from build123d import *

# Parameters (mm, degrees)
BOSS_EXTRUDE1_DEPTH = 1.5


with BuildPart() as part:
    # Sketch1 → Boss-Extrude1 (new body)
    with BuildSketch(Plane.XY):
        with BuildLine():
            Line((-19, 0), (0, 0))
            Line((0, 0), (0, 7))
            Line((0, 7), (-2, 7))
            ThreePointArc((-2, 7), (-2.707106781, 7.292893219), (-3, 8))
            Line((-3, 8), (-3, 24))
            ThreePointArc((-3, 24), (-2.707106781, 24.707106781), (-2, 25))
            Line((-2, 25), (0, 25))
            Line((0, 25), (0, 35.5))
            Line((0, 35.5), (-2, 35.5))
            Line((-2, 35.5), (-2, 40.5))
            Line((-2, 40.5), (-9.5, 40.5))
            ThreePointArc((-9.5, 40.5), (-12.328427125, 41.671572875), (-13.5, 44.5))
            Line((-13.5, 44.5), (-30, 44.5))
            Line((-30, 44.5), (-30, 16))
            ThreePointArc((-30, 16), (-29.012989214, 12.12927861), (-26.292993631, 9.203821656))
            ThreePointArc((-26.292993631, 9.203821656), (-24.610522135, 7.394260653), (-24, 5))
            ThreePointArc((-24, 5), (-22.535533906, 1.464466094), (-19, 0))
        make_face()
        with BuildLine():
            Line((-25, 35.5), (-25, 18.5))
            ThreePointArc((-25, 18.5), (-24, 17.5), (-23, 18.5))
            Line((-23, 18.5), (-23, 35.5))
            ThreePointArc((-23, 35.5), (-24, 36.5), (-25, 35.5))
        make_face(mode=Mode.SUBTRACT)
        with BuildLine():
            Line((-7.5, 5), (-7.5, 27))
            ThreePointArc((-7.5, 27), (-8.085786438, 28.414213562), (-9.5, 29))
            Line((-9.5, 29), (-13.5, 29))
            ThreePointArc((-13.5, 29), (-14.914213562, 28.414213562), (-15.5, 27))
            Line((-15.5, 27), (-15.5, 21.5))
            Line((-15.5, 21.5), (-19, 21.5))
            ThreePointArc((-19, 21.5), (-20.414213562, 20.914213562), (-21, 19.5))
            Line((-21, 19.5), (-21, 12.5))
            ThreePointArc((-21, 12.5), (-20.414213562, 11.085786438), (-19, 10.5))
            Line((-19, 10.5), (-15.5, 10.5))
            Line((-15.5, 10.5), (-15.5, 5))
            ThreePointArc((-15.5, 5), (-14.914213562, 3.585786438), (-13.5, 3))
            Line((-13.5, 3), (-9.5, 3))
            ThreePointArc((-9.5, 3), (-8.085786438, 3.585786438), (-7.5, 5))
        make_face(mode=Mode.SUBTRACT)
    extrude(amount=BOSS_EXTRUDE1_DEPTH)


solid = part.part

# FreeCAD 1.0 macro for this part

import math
import FreeCAD as App
import Part
import Sketcher

V = App.Vector

doc = App.newDocument("Part")
params = doc.addObject("Spreadsheet::Sheet", "Params")
for row, (alias, value) in enumerate([
    ("sketch1_radius", "1 mm"),
    ("sketch1_radius2", "4 mm"),
    ("sketch1_radius3", "5 mm"),
    ("sketch1_radius4", "2 mm"),
    ("sketch1_width", "19 mm"),
    ("pad1_length", "1.5 mm"),
], start=1):
    params.set(f"A{row}", alias)
    params.set(f"B{row}", "=" + value)
    params.setAlias(f"B{row}", alias)

body = doc.addObject("PartDesign::Body", "Body")

# Sketch on XY plane
sketch1 = body.newObject("Sketcher::SketchObject", "Sketch")
sketch1.AttachmentSupport = (doc.getObject("XY_Plane"), [""])
sketch1.MapMode = "FlatFace"
sketch1.addGeometry([
    Part.LineSegment(V(-19, 0, 0), V(0, 0, 0)),  # 0
    Part.LineSegment(V(0, 0, 0), V(0, 7, 0)),  # 1
    Part.LineSegment(V(0, 7, 0), V(-2, 7, 0)),  # 2
    Part.ArcOfCircle(Part.Circle(V(-2, 8, 0), V(0, 0, 1), 1), math.radians(-180), math.radians(-90)),  # 3
    Part.LineSegment(V(-3, 8, 0), V(-3, 24, 0)),  # 4
    Part.ArcOfCircle(Part.Circle(V(-2, 24, 0), V(0, 0, 1), 1), math.radians(90), math.radians(180)),  # 5
    Part.LineSegment(V(-2, 25, 0), V(0, 25, 0)),  # 6
    Part.LineSegment(V(0, 25, 0), V(0, 35.5, 0)),  # 7
    Part.LineSegment(V(0, 35.5, 0), V(-2, 35.5, 0)),  # 8
    Part.LineSegment(V(-2, 35.5, 0), V(-2, 40.5, 0)),  # 9
    Part.LineSegment(V(-2, 40.5, 0), V(-9.5, 40.5, 0)),  # 10
    Part.ArcOfCircle(Part.Circle(V(-9.5, 44.5, 0), V(0, 0, 1), 4), math.radians(180), math.radians(270)),  # 11
    Part.LineSegment(V(-13.5, 44.5, 0), V(-30, 44.5, 0)),  # 12
    Part.LineSegment(V(-30, 44.5, 0), V(-30, 16, 0)),  # 13
    Part.ArcOfCircle(Part.Circle(V(-21.9, 16, 0), V(0, 0, 1), 8.1), math.radians(-180), math.radians(-123)),  # 14
    Part.ArcOfCircle(Part.Circle(V(-29, 5, 0), V(0, 0, 1), 5), math.radians(0), math.radians(57)),  # 15
    Part.ArcOfCircle(Part.Circle(V(-19, 5, 0), V(0, 0, 1), 5), math.radians(180), math.radians(270)),  # 16
    Part.LineSegment(V(-7.5, 27, 0), V(-7.5, 5, 0)),  # 17
    Part.ArcOfCircle(Part.Circle(V(-9.5, 5, 0), V(0, 0, 1), 2), math.radians(-90), math.radians(0)),  # 18
    Part.LineSegment(V(-9.5, 3, 0), V(-13.5, 3, 0)),  # 19
    Part.ArcOfCircle(Part.Circle(V(-13.5, 5, 0), V(0, 0, 1), 2), math.radians(-180), math.radians(-90)),  # 20
    Part.LineSegment(V(-15.5, 5, 0), V(-15.5, 10.5, 0)),  # 21
    Part.LineSegment(V(-15.5, 10.5, 0), V(-19, 10.5, 0)),  # 22
    Part.ArcOfCircle(Part.Circle(V(-19, 12.5, 0), V(0, 0, 1), 2), math.radians(-180), math.radians(-90)),  # 23
    Part.LineSegment(V(-21, 12.5, 0), V(-21, 19.5, 0)),  # 24
    Part.ArcOfCircle(Part.Circle(V(-19, 19.5, 0), V(0, 0, 1), 2), math.radians(90), math.radians(180)),  # 25
    Part.LineSegment(V(-19, 21.5, 0), V(-15.5, 21.5, 0)),  # 26
    Part.LineSegment(V(-15.5, 21.5, 0), V(-15.5, 27, 0)),  # 27
    Part.ArcOfCircle(Part.Circle(V(-13.5, 27, 0), V(0, 0, 1), 2), math.radians(90), math.radians(180)),  # 28
    Part.LineSegment(V(-13.5, 29, 0), V(-9.5, 29, 0)),  # 29
    Part.ArcOfCircle(Part.Circle(V(-9.5, 27, 0), V(0, 0, 1), 2), math.radians(0), math.radians(90)),  # 30
    Part.LineSegment(V(-25, 18.5, 0), V(-25, 35.5, 0)),  # 31
    Part.ArcOfCircle(Part.Circle(V(-24, 35.5, 0), V(0, 0, 1), 1), math.radians(0), math.radians(180)),  # 32
    Part.LineSegment(V(-23, 35.5, 0), V(-23, 18.5, 0)),  # 33
    Part.ArcOfCircle(Part.Circle(V(-24, 18.5, 0), V(0, 0, 1), 1), math.radians(180), math.radians(360)),  # 34
], False)
sketch1.addConstraint([
    Sketcher.Constraint("Coincident", 0, 2, 1, 1),
    Sketcher.Constraint("Coincident", 1, 2, 2, 1),
    Sketcher.Constraint("Tangent", 2, 2, 3, 2),
    Sketcher.Constraint("Tangent", 3, 1, 4, 1),
    Sketcher.Constraint("Tangent", 4, 2, 5, 2),
    Sketcher.Constraint("Tangent", 5, 1, 6, 1),
    Sketcher.Constraint("Coincident", 6, 2, 7, 1),
    Sketcher.Constraint("Coincident", 7, 2, 8, 1),
    Sketcher.Constraint("Coincident", 8, 2, 9, 1),
    Sketcher.Constraint("Coincident", 9, 2, 10, 1),
    Sketcher.Constraint("Tangent", 10, 2, 11, 2),
    Sketcher.Constraint("Coincident", 11, 1, 12, 1),
    Sketcher.Constraint("Coincident", 12, 2, 13, 1),
    Sketcher.Constraint("Tangent", 13, 2, 14, 1),
    Sketcher.Constraint("Tangent", 14, 2, 15, 2),
    Sketcher.Constraint("Tangent", 15, 1, 16, 1),
    Sketcher.Constraint("Tangent", 16, 2, 0, 1),
    Sketcher.Constraint("Tangent", 17, 2, 18, 2),
    Sketcher.Constraint("Tangent", 18, 1, 19, 1),
    Sketcher.Constraint("Tangent", 19, 2, 20, 2),
    Sketcher.Constraint("Tangent", 20, 1, 21, 1),
    Sketcher.Constraint("Coincident", 21, 2, 22, 1),
    Sketcher.Constraint("Tangent", 22, 2, 23, 2),
    Sketcher.Constraint("Tangent", 23, 1, 24, 1),
    Sketcher.Constraint("Tangent", 24, 2, 25, 2),
    Sketcher.Constraint("Tangent", 25, 1, 26, 1),
    Sketcher.Constraint("Coincident", 26, 2, 27, 1),
    Sketcher.Constraint("Tangent", 27, 2, 28, 2),
    Sketcher.Constraint("Tangent", 28, 1, 29, 1),
    Sketcher.Constraint("Tangent", 29, 2, 30, 2),
    Sketcher.Constraint("Tangent", 30, 1, 17, 1),
    Sketcher.Constraint("Tangent", 31, 2, 32, 2),
    Sketcher.Constraint("Tangent", 32, 1, 33, 1),
    Sketcher.Constraint("Tangent", 33, 2, 34, 2),
    Sketcher.Constraint("Tangent", 34, 1, 31, 1),
    Sketcher.Constraint("Horizontal", 0),
    Sketcher.Constraint("Vertical", 1),
    Sketcher.Constraint("Horizontal", 2),
    Sketcher.Constraint("Vertical", 4),
    Sketcher.Constraint("Horizontal", 6),
    Sketcher.Constraint("Vertical", 7),
    Sketcher.Constraint("Horizontal", 8),
    Sketcher.Constraint("Vertical", 9),
    Sketcher.Constraint("Horizontal", 10),
    Sketcher.Constraint("Horizontal", 12),
    Sketcher.Constraint("Vertical", 13),
    Sketcher.Constraint("Vertical", 17),
    Sketcher.Constraint("Horizontal", 19),
    Sketcher.Constraint("Vertical", 21),
    Sketcher.Constraint("Horizontal", 22),
    Sketcher.Constraint("Vertical", 24),
    Sketcher.Constraint("Horizontal", 26),
    Sketcher.Constraint("Vertical", 27),
    Sketcher.Constraint("Horizontal", 29),
    Sketcher.Constraint("Vertical", 31),
    Sketcher.Constraint("Vertical", 33),
    Sketcher.Constraint("Coincident", 0, 2, -1, 1),
    Sketcher.Constraint("Equal", 3, 5),
    Sketcher.Constraint("Equal", 15, 16),
    Sketcher.Constraint("Equal", 18, 20),
    Sketcher.Constraint("Equal", 20, 23),
    Sketcher.Constraint("Equal", 23, 25),
    Sketcher.Constraint("Equal", 25, 28),
    Sketcher.Constraint("Equal", 28, 30),
    Sketcher.Constraint("Equal", 5, 32),
    Sketcher.Constraint("PointOnObject", 6, 2, -2),
    Sketcher.Constraint("Horizontal", 15, 3, 16, 3),
    Sketcher.Constraint("Horizontal", 16, 3, 18, 3),
    Sketcher.Constraint("Horizontal", 32, 3, 7, 2),
    Sketcher.Constraint("Vertical", 11, 3, 18, 3),
    Sketcher.Constraint("Vertical", 16, 3, 23, 3),
    Sketcher.Constraint("Vertical", 20, 3, 28, 3),
    Sketcher.Constraint("Vertical", 5, 1, 8, 2),
    Sketcher.Constraint("Vertical", 28, 3, 11, 1),
    Sketcher.Constraint("Vertical", 34, 3, 15, 1),
    Sketcher.Constraint("Equal", 1, 24),
    Sketcher.Constraint("Equal", 21, 27),
    Sketcher.Constraint("Radius", 3, 1.0),
    Sketcher.Constraint("Radius", 11, 4.0),
    Sketcher.Constraint("Radius", 15, 5.0),
    Sketcher.Constraint("Radius", 18, 2.0),
    Sketcher.Constraint("DistanceX", 0, 1, 0, 2, 19.0),
    Sketcher.Constraint("DistanceX", 2, 2, 2, 1, 2.0),
    Sketcher.Constraint("DistanceY", 1, 1, 1, 2, 7.0),
    Sketcher.Constraint("DistanceY", 4, 1, 4, 2, 16.0),
    Sketcher.Constraint("DistanceY", 9, 1, 9, 2, 5.0),
    Sketcher.Constraint("DistanceY", 17, 2, 17, 1, 22.0),
    Sketcher.Constraint("DistanceY", 31, 1, 31, 2, 17.0),
    Sketcher.Constraint("DistanceX", 10, 2, 10, 1, 7.5),
    Sketcher.Constraint("DistanceX", 12, 2, 12, 1, 16.5),
    Sketcher.Constraint("DistanceY", 7, 1, 7, 2, 10.5),
    Sketcher.Constraint("DistanceY", 13, 2, 13, 1, 28.5),
    Sketcher.Constraint("DistanceY", -1, 1, 14, 3, 16.0),
])
sketch1.setExpression("Constraints[77]", "Params.sketch1_radius")
sketch1.setExpression("Constraints[78]", "Params.sketch1_radius2")
sketch1.setExpression("Constraints[79]", "Params.sketch1_radius3")
sketch1.setExpression("Constraints[80]", "Params.sketch1_radius4")
sketch1.setExpression("Constraints[81]", "Params.sketch1_width")
pad1 = body.newObject("PartDesign::Pad", "Pad")
pad1.Profile = sketch1
pad1.setExpression("Length", "Params.pad1_length")

doc.recompute()
